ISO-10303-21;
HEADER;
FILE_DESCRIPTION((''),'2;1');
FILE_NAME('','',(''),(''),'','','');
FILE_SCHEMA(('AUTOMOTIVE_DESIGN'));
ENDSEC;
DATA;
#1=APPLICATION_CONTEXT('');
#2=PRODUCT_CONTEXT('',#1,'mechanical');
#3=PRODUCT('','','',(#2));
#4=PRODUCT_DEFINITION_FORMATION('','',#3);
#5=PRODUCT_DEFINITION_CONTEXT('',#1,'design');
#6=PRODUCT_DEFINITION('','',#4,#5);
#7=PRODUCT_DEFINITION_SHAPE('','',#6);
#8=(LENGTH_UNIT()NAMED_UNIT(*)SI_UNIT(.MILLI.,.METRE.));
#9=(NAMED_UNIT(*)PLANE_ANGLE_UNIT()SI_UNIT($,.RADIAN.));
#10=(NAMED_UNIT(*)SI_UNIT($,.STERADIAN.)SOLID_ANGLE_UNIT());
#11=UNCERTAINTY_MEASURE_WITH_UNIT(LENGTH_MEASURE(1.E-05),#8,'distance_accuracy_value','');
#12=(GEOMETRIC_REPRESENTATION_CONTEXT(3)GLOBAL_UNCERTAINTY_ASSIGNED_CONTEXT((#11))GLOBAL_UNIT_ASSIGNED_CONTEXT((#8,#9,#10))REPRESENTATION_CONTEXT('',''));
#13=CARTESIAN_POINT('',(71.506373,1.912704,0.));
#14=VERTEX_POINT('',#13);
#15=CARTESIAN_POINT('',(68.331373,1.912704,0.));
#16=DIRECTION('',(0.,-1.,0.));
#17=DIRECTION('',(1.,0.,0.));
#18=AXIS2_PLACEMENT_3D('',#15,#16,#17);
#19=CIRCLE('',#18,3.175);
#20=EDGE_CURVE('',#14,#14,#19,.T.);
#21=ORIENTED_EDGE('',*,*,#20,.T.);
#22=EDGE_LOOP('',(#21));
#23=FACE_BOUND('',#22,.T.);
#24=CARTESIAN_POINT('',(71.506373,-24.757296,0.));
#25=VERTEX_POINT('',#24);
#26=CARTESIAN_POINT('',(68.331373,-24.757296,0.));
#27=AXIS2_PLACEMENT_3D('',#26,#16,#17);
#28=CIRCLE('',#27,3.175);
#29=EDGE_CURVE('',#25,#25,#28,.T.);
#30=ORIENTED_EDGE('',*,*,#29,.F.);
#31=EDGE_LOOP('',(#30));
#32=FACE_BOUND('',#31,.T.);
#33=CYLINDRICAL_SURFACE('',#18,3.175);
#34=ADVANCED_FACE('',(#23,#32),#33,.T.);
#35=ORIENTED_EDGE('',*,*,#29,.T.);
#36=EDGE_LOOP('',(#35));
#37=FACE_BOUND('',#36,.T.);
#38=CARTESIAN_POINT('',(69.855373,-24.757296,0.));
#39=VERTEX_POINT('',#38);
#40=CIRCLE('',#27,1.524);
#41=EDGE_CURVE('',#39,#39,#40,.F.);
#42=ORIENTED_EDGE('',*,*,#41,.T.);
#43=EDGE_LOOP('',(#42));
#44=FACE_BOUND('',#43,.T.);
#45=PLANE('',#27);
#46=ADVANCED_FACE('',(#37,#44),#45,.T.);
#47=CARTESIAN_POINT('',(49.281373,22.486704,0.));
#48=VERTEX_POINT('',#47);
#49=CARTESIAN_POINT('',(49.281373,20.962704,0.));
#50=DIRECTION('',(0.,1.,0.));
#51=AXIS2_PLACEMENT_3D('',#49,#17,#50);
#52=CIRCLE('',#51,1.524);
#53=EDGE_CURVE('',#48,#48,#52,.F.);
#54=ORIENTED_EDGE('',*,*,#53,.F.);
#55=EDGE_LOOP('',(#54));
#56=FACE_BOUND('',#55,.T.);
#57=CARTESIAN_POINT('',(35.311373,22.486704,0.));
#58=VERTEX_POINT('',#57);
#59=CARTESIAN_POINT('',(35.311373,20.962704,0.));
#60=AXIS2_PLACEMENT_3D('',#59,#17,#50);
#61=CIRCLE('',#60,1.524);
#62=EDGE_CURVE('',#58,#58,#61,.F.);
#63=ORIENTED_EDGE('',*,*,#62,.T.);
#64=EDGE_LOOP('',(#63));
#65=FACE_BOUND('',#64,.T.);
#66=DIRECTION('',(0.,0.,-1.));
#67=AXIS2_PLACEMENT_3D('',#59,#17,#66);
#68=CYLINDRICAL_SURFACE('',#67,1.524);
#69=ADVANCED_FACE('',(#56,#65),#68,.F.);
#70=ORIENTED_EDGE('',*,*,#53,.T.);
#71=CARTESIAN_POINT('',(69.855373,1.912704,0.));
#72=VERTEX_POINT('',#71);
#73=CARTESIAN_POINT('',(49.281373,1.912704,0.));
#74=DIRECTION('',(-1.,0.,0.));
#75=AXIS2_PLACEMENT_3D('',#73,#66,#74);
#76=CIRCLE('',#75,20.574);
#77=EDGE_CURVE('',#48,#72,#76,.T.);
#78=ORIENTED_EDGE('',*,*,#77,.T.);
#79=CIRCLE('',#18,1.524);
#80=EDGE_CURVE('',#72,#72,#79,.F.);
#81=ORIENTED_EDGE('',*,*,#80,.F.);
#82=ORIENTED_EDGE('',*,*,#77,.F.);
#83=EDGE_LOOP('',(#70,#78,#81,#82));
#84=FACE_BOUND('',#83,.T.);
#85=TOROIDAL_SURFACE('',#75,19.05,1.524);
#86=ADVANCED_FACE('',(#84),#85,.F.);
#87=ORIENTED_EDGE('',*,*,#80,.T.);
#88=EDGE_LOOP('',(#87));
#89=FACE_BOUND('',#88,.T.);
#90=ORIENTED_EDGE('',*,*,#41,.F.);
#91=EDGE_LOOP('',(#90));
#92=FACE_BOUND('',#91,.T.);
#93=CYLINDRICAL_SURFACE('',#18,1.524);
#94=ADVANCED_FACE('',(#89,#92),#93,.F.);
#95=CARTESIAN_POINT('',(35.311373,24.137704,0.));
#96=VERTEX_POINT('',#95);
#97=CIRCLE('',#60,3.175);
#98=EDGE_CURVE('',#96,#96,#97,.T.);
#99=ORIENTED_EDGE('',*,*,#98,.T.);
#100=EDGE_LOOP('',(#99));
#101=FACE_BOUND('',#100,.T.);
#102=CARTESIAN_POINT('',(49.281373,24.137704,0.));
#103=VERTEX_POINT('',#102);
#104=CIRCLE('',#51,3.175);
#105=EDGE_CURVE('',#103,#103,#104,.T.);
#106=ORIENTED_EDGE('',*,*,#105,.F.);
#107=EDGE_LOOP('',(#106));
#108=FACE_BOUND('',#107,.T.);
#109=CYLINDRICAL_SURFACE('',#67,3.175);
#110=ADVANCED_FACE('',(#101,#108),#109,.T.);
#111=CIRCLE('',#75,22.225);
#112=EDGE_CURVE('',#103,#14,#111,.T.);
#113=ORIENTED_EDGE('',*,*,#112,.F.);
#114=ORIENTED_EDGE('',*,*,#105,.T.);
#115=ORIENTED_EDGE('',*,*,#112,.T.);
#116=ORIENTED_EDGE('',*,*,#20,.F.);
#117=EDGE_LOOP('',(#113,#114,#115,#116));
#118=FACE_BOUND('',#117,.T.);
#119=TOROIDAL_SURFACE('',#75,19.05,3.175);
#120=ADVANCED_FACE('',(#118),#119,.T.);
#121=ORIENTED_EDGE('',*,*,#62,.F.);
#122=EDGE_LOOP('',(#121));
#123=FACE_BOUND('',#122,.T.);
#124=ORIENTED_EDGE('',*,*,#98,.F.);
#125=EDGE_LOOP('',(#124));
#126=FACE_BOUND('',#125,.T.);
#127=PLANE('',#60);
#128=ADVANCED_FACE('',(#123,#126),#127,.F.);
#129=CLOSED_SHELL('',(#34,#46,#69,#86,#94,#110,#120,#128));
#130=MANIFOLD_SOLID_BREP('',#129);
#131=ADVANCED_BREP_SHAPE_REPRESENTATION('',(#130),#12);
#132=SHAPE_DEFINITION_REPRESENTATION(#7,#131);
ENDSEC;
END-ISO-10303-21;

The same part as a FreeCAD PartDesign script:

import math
import FreeCAD as App
import Part
import Sketcher

V = App.Vector
Q = App.Units.Quantity

doc = App.newDocument("Part")
params = doc.addObject("Spreadsheet::Sheet", "Params")
for row, (alias, value) in enumerate([
    ("sketch1_diameter", "0.25 in"),
    ("sketch1_diameter2", "0.12 in"),
    ("sketch2_radius", "0.75 in"),
    ("sketch2_width", "0.55 in"),
    ("sketch2_height", "1.05 in"),
], start=1):
    params.set(f"A{row}", alias)
    params.set(f"B{row}", "=" + value)
    params.setAlias(f"B{row}", alias)

body = doc.addObject("PartDesign::Body", "Body")

# Sketch on YZ plane
sketch1 = body.newObject("Sketcher::SketchObject", "Sketch")
sketch1.AttachmentSupport = (doc.getObject("YZ_Plane"), [""])
sketch1.MapMode = "FlatFace"
sketch1.AttachmentOffset = App.Placement(V(0, 0, 35.311373), App.Rotation())
sketch1.addGeometry([
    Part.Circle(V(21, 0, 0), V(0, 0, 1), 3.2),
    Part.Circle(V(21, 0, 0), V(0, 0, 1), 1.5),
], False)
sketch1.addConstraint([
    Sketcher.Constraint("Coincident", 1, 3, 0, 3),
    Sketcher.Constraint("PointOnObject", 0, 3, -1),
    Sketcher.Constraint("Diameter", 0, Q("0.25 in")),
    Sketcher.Constraint("Diameter", 1, Q("0.12 in")),
    Sketcher.Constraint("DistanceX", -1, 1, 0, 3, Q("20.962704 mm")),
])
sketch1.setExpression("Constraints[2]", "Params.sketch1_diameter")
sketch1.setExpression("Constraints[3]", "Params.sketch1_diameter2")

# Sketch on XY plane
sketch2 = body.newObject("Sketcher::SketchObject", "Sketch001")
sketch2.AttachmentSupport = (doc.getObject("XY_Plane"), [""])
sketch2.MapMode = "FlatFace"
sketch2.addGeometry([
    Part.LineSegment(V(35, 21, 0), V(49, 21, 0)),
    Part.ArcOfCircle(Part.Circle(V(49, 2, 0), V(0, 0, 1), 19), math.radians(0), math.radians(90)),
    Part.LineSegment(V(68, 2, 0), V(68, -25, 0)),
], False)
sketch2.addConstraint([
    Sketcher.Constraint("Tangent", 0, 2, 1, 2),
    Sketcher.Constraint("Tangent", 1, 1, 2, 1),
    Sketcher.Constraint("Horizontal", 0),
    Sketcher.Constraint("Vertical", 2),
    Sketcher.Constraint("Radius", 1, Q("0.75 in")),
    Sketcher.Constraint("DistanceX", 0, 1, 0, 2, Q("0.55 in")),
    Sketcher.Constraint("DistanceY", 2, 2, 2, 1, Q("1.05 in")),
    Sketcher.Constraint("DistanceX", -1, 1, 1, 3, Q("49.281373 mm")),
    Sketcher.Constraint("DistanceY", -1, 1, 1, 3, Q("1.912704 mm")),
])
sketch2.setExpression("Constraints[4]", "Params.sketch2_radius")
sketch2.setExpression("Constraints[5]", "Params.sketch2_width")
sketch2.setExpression("Constraints[6]", "Params.sketch2_height")
doc.recompute()

additivepipe = body.newObject("PartDesign::AdditivePipe", "AdditivePipe")
additivepipe.Profile = sketch1
additivepipe.Spine = (sketch2, ["Edge1", "Edge2", "Edge3"])

doc.recompute()
